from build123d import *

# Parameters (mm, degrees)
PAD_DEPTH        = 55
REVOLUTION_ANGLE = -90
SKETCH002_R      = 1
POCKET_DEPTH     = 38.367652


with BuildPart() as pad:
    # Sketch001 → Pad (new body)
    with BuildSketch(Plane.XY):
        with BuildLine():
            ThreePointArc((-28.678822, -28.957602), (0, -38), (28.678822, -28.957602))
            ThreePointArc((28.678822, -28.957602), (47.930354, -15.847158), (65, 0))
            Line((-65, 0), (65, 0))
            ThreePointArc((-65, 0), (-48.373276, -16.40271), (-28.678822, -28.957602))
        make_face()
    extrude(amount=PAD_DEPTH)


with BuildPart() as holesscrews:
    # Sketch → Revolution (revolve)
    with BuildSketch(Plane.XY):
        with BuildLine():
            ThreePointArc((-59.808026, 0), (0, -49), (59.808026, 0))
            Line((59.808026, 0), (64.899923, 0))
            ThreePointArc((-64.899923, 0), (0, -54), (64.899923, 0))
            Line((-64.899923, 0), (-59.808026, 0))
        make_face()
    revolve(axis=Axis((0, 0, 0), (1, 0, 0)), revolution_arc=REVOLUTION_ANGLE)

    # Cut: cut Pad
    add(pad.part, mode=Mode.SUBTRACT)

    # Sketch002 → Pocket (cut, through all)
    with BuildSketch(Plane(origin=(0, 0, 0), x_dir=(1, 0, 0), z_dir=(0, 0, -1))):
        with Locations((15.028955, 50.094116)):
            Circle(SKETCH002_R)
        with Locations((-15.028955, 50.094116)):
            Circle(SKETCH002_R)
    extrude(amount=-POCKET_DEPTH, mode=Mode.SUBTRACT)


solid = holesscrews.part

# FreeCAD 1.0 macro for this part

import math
import FreeCAD as App
import Part
import Sketcher
from FreeCAD import Vector

doc = App.newDocument("Part")
body = doc.addObject("PartDesign::Body", "Body")

# Sketch on XY plane
sketch1 = body.newObject("Sketcher::SketchObject", "Sketch")
sketch1.AttachmentSupport = (doc.getObject("XY_Plane"), [""])
sketch1.MapMode = "FlatFace"
sketch1.addGeometry([
    Part.ArcOfCircle(Part.Circle(Vector(0, 12, 0), Vector(0, 0, 1), 50), math.radians(-125), math.radians(-55)),
    Part.ArcOfCircle(Part.Circle(Vector(-49, 105, 0), Vector(0, 0, 1), 155), math.radians(-60.05), math.radians(-42.82)),
    Part.LineSegment(Vector(65, 0, 0), Vector(-65, 0, 0)),
    Part.ArcOfCircle(Part.Circle(Vector(21, 70, 0), Vector(0, 0, 1), 111), math.radians(-141), math.radians(-116)),
], False)
sketch1.addConstraint([
    Sketcher.Constraint("Coincident", 0, 2, 1, 1),
    Sketcher.Constraint("Coincident", 1, 2, 2, 1),
    Sketcher.Constraint("Coincident", 2, 2, 3, 1),
    Sketcher.Constraint("Coincident", 3, 2, 0, 1),
    Sketcher.Constraint("Horizontal", 2),
    Sketcher.Constraint("Symmetric", 1, 2, 2, 2, -1, 1),
    Sketcher.Constraint("Symmetric", 0, 2, 3, 2, -2),
    Sketcher.Constraint("Radius", 0, 50.0),
    Sketcher.Constraint("DistanceX", 2, 2, 2, 1, 130.0),
    Sketcher.Constraint("DistanceY", -1, 1, 0, 3, 12.0),
    Sketcher.Constraint("Radius", 1, 155.000039),
    Sketcher.Constraint("Radius", 3, 110.849827),
    Sketcher.Constraint("DistanceY", 0, 2, -1, 1, 28.957602),
])
pad1 = body.newObject("PartDesign::Pad", "Pad")
pad1.Profile = sketch1
pad1.Length = 55
body2 = doc.addObject("PartDesign::Body", "Body001")

# Sketch on XY plane
sketch2 = body2.newObject("Sketcher::SketchObject", "Sketch001")
sketch2.AttachmentSupport = (doc.getObject("XY_Plane001"), [""])
sketch2.MapMode = "FlatFace"
sketch2.addGeometry([
    Part.ArcOfCircle(Part.Circle(Vector(0, 12, 0), Vector(0, 0, 1), 61), math.radians(-169), math.radians(-11)),
    Part.LineSegment(Vector(-60, 0, 0), Vector(-65, 0, 0)),
    Part.ArcOfCircle(Part.Circle(Vector(0, 12, 0), Vector(0, 0, 1), 66), math.radians(-170), math.radians(-10)),
    Part.LineSegment(Vector(65, 0, 0), Vector(60, 0, 0)),
], False)
sketch2.addConstraint([
    Sketcher.Constraint("Coincident", 0, 1, 1, 1),
    Sketcher.Constraint("Coincident", 1, 2, 2, 1),
    Sketcher.Constraint("Coincident", 2, 2, 3, 1),
    Sketcher.Constraint("Coincident", 3, 2, 0, 2),
    Sketcher.Constraint("Horizontal", 1),
    Sketcher.Constraint("Horizontal", 3),
    Sketcher.Constraint("Coincident", 2, 3, 0, 3),
    Sketcher.Constraint("Symmetric", 1, 2, 2, 2, -1, 1),
    Sketcher.Constraint("PointOnObject", 0, 3, -2),
    Sketcher.Constraint("Radius", 0, 61.0),
    Sketcher.Constraint("Radius", 2, 66.0),
    Sketcher.Constraint("DistanceY", -1, 1, 0, 3, 12.0),
])
revolution = body2.newObject("PartDesign::Revolution", "Revolution")
revolution.Profile = sketch2
revolution.ReferenceAxis = (sketch2, ["H_Axis"])
revolution.Angle = 90
revolution.Reversed = True
doc.recompute()

boolean = body2.newObject("PartDesign::Boolean", "Boolean")
boolean.Type = "Cut"
boolean.addObjects([body])

# Sketch on XY plane
sketch3 = body2.newObject("Sketcher::SketchObject", "Sketch002")
sketch3.AttachmentSupport = (doc.getObject("XY_Plane001"), [""])
sketch3.MapMode = "FlatFace"
sketch3.addGeometry([
    Part.Circle(Vector(15, -50.1, 0), Vector(0, 0, 1), 1),
    Part.Circle(Vector(-15, -50.1, 0), Vector(0, 0, 1), 1),
], False)
sketch3.addConstraint([
    Sketcher.Constraint("Equal", 0, 1),
    Sketcher.Constraint("Symmetric", 0, 3, 1, 3, -2),
    Sketcher.Constraint("Diameter", 0, 2.0),
    Sketcher.Constraint("DistanceX", 1, 3, 0, 3, 30.05791),
    Sketcher.Constraint("DistanceY", 0, 3, -1, 1, 50.094116),
])
pocket1 = body2.newObject("PartDesign::Pocket", "Pocket")
pocket1.Profile = sketch3
pocket1.Type = "ThroughAll"
pocket1.Reversed = True

doc.recompute()
